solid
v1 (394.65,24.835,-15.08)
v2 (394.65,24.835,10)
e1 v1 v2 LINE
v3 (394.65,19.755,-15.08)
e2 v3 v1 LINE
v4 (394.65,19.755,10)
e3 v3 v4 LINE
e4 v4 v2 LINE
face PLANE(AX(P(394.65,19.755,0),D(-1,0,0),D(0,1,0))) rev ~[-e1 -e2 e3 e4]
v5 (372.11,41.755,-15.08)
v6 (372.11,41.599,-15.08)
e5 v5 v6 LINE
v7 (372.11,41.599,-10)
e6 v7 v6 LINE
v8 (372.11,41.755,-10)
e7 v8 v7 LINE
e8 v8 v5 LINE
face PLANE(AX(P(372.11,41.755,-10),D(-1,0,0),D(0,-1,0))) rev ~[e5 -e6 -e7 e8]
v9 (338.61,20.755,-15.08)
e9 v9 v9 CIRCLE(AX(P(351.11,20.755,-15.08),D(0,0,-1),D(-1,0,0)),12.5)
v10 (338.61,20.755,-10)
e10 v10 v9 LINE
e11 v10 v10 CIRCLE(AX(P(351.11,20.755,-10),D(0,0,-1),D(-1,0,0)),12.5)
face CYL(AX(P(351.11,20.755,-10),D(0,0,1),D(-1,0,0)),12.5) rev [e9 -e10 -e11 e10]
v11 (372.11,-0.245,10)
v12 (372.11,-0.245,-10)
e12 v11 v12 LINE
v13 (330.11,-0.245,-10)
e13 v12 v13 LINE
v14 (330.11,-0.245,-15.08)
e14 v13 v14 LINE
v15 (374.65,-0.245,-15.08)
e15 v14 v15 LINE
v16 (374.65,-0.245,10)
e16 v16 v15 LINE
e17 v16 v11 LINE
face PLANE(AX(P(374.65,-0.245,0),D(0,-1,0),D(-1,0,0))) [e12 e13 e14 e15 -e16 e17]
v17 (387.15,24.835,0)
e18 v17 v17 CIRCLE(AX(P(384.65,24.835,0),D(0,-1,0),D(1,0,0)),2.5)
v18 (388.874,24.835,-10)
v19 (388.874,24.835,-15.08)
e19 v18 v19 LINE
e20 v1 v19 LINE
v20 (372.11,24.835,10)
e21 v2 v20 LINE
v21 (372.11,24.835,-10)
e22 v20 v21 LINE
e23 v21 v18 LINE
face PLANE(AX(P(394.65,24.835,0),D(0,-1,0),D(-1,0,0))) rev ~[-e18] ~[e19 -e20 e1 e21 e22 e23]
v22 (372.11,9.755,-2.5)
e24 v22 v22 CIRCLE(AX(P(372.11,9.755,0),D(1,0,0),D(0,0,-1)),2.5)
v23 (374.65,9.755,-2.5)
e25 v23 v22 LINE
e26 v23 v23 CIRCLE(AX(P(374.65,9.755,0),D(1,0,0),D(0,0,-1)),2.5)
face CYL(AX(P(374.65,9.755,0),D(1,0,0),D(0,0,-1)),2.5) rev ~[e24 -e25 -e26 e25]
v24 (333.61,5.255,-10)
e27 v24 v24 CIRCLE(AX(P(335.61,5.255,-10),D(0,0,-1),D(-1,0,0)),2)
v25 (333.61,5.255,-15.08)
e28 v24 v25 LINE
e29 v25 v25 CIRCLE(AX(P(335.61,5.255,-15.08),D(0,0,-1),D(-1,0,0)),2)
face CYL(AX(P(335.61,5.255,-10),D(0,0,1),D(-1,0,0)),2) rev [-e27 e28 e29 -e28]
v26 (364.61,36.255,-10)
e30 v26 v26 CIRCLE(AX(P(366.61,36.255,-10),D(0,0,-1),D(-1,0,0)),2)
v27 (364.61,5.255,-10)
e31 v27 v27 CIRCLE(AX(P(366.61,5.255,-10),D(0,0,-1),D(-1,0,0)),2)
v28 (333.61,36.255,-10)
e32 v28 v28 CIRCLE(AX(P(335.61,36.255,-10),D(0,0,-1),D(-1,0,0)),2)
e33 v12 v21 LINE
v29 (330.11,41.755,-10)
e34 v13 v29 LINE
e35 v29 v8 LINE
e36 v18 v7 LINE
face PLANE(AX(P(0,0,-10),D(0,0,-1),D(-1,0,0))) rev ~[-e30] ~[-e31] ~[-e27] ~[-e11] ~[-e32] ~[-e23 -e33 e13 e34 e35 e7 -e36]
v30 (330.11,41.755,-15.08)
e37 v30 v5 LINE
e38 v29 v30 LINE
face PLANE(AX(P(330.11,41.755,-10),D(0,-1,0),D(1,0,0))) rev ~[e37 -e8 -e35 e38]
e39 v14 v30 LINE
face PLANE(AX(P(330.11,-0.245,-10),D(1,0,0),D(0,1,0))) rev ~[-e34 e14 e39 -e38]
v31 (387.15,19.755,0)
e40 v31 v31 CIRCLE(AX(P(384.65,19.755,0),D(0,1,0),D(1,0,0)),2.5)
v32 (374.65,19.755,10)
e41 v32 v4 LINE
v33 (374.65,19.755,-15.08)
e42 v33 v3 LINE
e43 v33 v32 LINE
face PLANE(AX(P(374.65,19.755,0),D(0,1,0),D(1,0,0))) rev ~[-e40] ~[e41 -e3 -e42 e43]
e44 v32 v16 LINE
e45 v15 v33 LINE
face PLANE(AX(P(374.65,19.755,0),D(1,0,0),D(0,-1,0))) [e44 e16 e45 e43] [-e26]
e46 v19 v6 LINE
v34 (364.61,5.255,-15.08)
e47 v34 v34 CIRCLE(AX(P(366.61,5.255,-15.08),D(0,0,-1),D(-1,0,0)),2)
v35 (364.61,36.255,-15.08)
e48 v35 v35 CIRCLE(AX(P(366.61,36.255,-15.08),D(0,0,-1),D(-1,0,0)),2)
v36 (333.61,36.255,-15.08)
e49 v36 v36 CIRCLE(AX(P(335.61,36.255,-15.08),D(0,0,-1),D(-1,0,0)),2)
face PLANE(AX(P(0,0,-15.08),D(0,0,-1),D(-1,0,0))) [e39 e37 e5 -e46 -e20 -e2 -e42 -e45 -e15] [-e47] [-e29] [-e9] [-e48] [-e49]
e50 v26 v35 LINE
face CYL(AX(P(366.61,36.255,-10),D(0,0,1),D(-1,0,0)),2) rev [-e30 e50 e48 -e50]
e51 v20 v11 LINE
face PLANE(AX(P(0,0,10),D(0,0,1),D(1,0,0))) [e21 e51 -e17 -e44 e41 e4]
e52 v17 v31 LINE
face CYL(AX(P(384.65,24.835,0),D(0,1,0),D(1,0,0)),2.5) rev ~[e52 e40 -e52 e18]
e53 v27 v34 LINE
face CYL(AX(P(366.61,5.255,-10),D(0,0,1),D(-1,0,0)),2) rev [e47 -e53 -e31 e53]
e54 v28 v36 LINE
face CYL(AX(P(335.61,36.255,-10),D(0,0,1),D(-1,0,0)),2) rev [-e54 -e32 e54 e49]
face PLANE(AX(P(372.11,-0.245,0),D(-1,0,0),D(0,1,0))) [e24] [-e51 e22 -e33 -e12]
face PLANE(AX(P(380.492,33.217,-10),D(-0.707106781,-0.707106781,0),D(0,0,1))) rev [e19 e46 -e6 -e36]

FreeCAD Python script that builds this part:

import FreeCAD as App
import Part
import Sketcher
Q = App.Units.Quantity


def edges_at(feature, points):
    """Names of the edges that pass closest to the given points."""
    edges = feature.Shape.Edges
    near = lambda p: min(range(len(edges)), key=lambda i: edges[i].distToShape(Part.Vertex(*p))[0])
    return sorted({f"Edge{near(p) + 1}" for p in points})


def add_polygon(sketch, points):
    """Adds a closed chain of lines whose ends are joined by coincident constraints."""
    first, n = sketch.GeometryCount, len(points)
    for a, b in zip(points, points[1:] + points[:1]):
        sketch.addGeometry(Part.LineSegment(App.Vector(*a, 0), App.Vector(*b, 0)), False)
    for i in range(n):
        sketch.addConstraint(Sketcher.Constraint("Coincident", first + i, 2, first + (i + 1) % n, 1))

doc = App.newDocument("Part")
body = doc.addObject("PartDesign::Body", "Body")

# Sketch on XY plane
sketch1 = body.newObject("Sketcher::SketchObject", "Sketch")
sketch1.AttachmentSupport = (doc.getObject("XY_Plane"), [""])
sketch1.MapMode = "FlatFace"
add_polygon(sketch1, [(374.65, -0.245), (374.65, 19.755), (394.65, 19.755), (394.65, 24.835), (372.11, 24.835), (372.11, -0.245)])  # lines 0-5
sketch1.addConstraint(Sketcher.Constraint("Vertical", 0))
sketch1.addConstraint(Sketcher.Constraint("Horizontal", 1))
sketch1.addConstraint(Sketcher.Constraint("Vertical", 2))
sketch1.addConstraint(Sketcher.Constraint("Horizontal", 3))
sketch1.addConstraint(Sketcher.Constraint("Vertical", 4))
sketch1.addConstraint(Sketcher.Constraint("Horizontal", 5))
sketch1.addConstraint(Sketcher.Constraint("Equal", 1, 0))
sketch1.addConstraint(Sketcher.Constraint("DistanceX", 1, 1, 1, 2, Q("20 mm")))
sketch1.addConstraint(Sketcher.Constraint("DistanceX", 5, 1, 5, 2, Q("2.54 mm")))
sketch1.addConstraint(Sketcher.Constraint("DistanceY", 2, 1, 2, 2, Q("5.08 mm")))
sketch1.addConstraint(Sketcher.Constraint("DistanceX", -1, 1, 0, 2, Q("374.65 mm")))
sketch1.addConstraint(Sketcher.Constraint("DistanceY", -1, 1, 0, 2, Q("19.755 mm")))
pad1 = body.newObject("PartDesign::Pad", "Pad")
pad1.Profile = sketch1
pad1.Length = 20
pad1.Midplane = True

# Sketch on XZ plane
sketch2 = body.newObject("Sketcher::SketchObject", "Sketch001")
sketch2.AttachmentSupport = (doc.getObject("XZ_Plane"), [""])
sketch2.MapMode = "FlatFace"
sketch2.AttachmentOffset = App.Placement(App.Vector(0, 0, -24.835), App.Rotation())
sketch2.addGeometry(Part.Circle(App.Vector(384.65, 0, 0), App.Vector(0, 0, 1), 2.5), False)
sketch2.addConstraint(Sketcher.Constraint("PointOnObject", 0, 3, -1))
sketch2.addConstraint(Sketcher.Constraint("Diameter", 0, Q("5 mm")))
sketch2.addConstraint(Sketcher.Constraint("DistanceX", -1, 1, 0, 3, Q("384.65 mm")))
pocket1 = body.newObject("PartDesign::Pocket", "Pocket")
pocket1.Profile = sketch2
pocket1.Length = 20
pocket1.Reversed = True

# Sketch on YZ plane
sketch3 = body.newObject("Sketcher::SketchObject", "Sketch002")
sketch3.AttachmentSupport = (doc.getObject("YZ_Plane"), [""])
sketch3.MapMode = "FlatFace"
sketch3.AttachmentOffset = App.Placement(App.Vector(0, 0, 374.65), App.Rotation())
sketch3.addGeometry(Part.Circle(App.Vector(9.755, 0, 0), App.Vector(0, 0, 1), 2.5), False)
sketch3.addConstraint(Sketcher.Constraint("PointOnObject", 0, 3, -1))
sketch3.addConstraint(Sketcher.Constraint("Diameter", 0, Q("5 mm")))
sketch3.addConstraint(Sketcher.Constraint("DistanceX", -1, 1, 0, 3, Q("9.755 mm")))
pocket2 = body.newObject("PartDesign::Pocket", "Pocket001")
pocket2.Profile = sketch3
pocket2.Length = 20

# Sketch on XY plane
sketch4 = body.newObject("Sketcher::SketchObject", "Sketch003")
sketch4.AttachmentSupport = (doc.getObject("XY_Plane"), [""])
sketch4.MapMode = "FlatFace"
sketch4.AttachmentOffset = App.Placement(App.Vector(0, 0, -10), App.Rotation())
add_polygon(sketch4, [(374.65, 19.755), (374.65, -0.245), (330.11, -0.245), (330.11, 41.755), (372.11, 41.755), (372.11, 24.835), (394.65, 24.835), (394.65, 19.755)])  # lines 0-7
sketch4.addGeometry(Part.Circle(App.Vector(335.61, 36.255, 0), App.Vector(0, 0, 1), 2), False)  # 8
sketch4.addGeometry(Part.Circle(App.Vector(366.61, 5.255, 0), App.Vector(0, 0, 1), 2), False)  # 9
sketch4.addGeometry(Part.Circle(App.Vector(335.61, 5.255, 0), App.Vector(0, 0, 1), 2), False)  # 10
sketch4.addGeometry(Part.Circle(App.Vector(351.11, 20.755, 0), App.Vector(0, 0, 1), 12.5), False)  # 11
sketch4.addGeometry(Part.Circle(App.Vector(366.61, 36.255, 0), App.Vector(0, 0, 1), 2), False)  # 12
sketch4.addConstraint(Sketcher.Constraint("Vertical", 0))
sketch4.addConstraint(Sketcher.Constraint("Horizontal", 1))
sketch4.addConstraint(Sketcher.Constraint("Vertical", 2))
sketch4.addConstraint(Sketcher.Constraint("Horizontal", 3))
sketch4.addConstraint(Sketcher.Constraint("Vertical", 4))
sketch4.addConstraint(Sketcher.Constraint("Horizontal", 5))
sketch4.addConstraint(Sketcher.Constraint("Vertical", 6))
sketch4.addConstraint(Sketcher.Constraint("Horizontal", 7))
sketch4.addConstraint(Sketcher.Constraint("Equal", 8, 9))
sketch4.addConstraint(Sketcher.Constraint("Equal", 9, 10))
sketch4.addConstraint(Sketcher.Constraint("Equal", 10, 12))
sketch4.addConstraint(Sketcher.Constraint("Horizontal", 9, 3, 10, 3))
sketch4.addConstraint(Sketcher.Constraint("Horizontal", 8, 3, 12, 3))
sketch4.addConstraint(Sketcher.Constraint("Vertical", 8, 3, 10, 3))
sketch4.addConstraint(Sketcher.Constraint("Vertical", 9, 3, 12, 3))
sketch4.addConstraint(Sketcher.Constraint("Equal", 7, 0))
sketch4.addConstraint(Sketcher.Constraint("Equal", 3, 2))
sketch4.addConstraint(Sketcher.Constraint("Diameter", 8, Q("4 mm")))
sketch4.addConstraint(Sketcher.Constraint("Diameter", 11, Q("25 mm")))
sketch4.addConstraint(Sketcher.Constraint("DistanceX", 3, 1, 3, 2, Q("42 mm")))
sketch4.addConstraint(Sketcher.Constraint("DistanceX", 8, 3, 9, 3, Q("31 mm")))
sketch4.addConstraint(Sketcher.Constraint("DistanceY", 9, 3, 8, 3, Q("31 mm")))
sketch4.addConstraint(Sketcher.Constraint("DistanceX", 7, 2, 7, 1, Q("20 mm")))
sketch4.addConstraint(Sketcher.Constraint("DistanceY", 0, 2, 11, 3, Q("21 mm")))
sketch4.addConstraint(Sketcher.Constraint("DistanceX", 1, 2, 11, 3, Q("21 mm")))
sketch4.addConstraint(Sketcher.Constraint("DistanceX", 1, 2, 1, 1, Q("44.54 mm")))
sketch4.addConstraint(Sketcher.Constraint("DistanceY", 4, 2, 4, 1, Q("16.92 mm")))
sketch4.addConstraint(Sketcher.Constraint("DistanceX", 11, 3, 9, 3, Q("15.5 mm")))
sketch4.addConstraint(Sketcher.Constraint("DistanceY", 9, 3, 11, 3, Q("15.5 mm")))
sketch4.addConstraint(Sketcher.Constraint("DistanceX", -1, 1, 8, 3, Q("335.61 mm")))
sketch4.addConstraint(Sketcher.Constraint("DistanceY", -1, 1, 8, 3, Q("36.255 mm")))
pad2 = body.newObject("PartDesign::Pad", "Pad001")
pad2.Profile = sketch4
pad2.Length = 5.08
pad2.Reversed = True
doc.recompute()

chamfer = body.newObject("PartDesign::Chamfer", "Chamfer")
chamfer.Base = (pad2, edges_at(pad2, [(372.11, 24.835, -12.54)]))
chamfer.Size = 16.764

doc.recompute()
